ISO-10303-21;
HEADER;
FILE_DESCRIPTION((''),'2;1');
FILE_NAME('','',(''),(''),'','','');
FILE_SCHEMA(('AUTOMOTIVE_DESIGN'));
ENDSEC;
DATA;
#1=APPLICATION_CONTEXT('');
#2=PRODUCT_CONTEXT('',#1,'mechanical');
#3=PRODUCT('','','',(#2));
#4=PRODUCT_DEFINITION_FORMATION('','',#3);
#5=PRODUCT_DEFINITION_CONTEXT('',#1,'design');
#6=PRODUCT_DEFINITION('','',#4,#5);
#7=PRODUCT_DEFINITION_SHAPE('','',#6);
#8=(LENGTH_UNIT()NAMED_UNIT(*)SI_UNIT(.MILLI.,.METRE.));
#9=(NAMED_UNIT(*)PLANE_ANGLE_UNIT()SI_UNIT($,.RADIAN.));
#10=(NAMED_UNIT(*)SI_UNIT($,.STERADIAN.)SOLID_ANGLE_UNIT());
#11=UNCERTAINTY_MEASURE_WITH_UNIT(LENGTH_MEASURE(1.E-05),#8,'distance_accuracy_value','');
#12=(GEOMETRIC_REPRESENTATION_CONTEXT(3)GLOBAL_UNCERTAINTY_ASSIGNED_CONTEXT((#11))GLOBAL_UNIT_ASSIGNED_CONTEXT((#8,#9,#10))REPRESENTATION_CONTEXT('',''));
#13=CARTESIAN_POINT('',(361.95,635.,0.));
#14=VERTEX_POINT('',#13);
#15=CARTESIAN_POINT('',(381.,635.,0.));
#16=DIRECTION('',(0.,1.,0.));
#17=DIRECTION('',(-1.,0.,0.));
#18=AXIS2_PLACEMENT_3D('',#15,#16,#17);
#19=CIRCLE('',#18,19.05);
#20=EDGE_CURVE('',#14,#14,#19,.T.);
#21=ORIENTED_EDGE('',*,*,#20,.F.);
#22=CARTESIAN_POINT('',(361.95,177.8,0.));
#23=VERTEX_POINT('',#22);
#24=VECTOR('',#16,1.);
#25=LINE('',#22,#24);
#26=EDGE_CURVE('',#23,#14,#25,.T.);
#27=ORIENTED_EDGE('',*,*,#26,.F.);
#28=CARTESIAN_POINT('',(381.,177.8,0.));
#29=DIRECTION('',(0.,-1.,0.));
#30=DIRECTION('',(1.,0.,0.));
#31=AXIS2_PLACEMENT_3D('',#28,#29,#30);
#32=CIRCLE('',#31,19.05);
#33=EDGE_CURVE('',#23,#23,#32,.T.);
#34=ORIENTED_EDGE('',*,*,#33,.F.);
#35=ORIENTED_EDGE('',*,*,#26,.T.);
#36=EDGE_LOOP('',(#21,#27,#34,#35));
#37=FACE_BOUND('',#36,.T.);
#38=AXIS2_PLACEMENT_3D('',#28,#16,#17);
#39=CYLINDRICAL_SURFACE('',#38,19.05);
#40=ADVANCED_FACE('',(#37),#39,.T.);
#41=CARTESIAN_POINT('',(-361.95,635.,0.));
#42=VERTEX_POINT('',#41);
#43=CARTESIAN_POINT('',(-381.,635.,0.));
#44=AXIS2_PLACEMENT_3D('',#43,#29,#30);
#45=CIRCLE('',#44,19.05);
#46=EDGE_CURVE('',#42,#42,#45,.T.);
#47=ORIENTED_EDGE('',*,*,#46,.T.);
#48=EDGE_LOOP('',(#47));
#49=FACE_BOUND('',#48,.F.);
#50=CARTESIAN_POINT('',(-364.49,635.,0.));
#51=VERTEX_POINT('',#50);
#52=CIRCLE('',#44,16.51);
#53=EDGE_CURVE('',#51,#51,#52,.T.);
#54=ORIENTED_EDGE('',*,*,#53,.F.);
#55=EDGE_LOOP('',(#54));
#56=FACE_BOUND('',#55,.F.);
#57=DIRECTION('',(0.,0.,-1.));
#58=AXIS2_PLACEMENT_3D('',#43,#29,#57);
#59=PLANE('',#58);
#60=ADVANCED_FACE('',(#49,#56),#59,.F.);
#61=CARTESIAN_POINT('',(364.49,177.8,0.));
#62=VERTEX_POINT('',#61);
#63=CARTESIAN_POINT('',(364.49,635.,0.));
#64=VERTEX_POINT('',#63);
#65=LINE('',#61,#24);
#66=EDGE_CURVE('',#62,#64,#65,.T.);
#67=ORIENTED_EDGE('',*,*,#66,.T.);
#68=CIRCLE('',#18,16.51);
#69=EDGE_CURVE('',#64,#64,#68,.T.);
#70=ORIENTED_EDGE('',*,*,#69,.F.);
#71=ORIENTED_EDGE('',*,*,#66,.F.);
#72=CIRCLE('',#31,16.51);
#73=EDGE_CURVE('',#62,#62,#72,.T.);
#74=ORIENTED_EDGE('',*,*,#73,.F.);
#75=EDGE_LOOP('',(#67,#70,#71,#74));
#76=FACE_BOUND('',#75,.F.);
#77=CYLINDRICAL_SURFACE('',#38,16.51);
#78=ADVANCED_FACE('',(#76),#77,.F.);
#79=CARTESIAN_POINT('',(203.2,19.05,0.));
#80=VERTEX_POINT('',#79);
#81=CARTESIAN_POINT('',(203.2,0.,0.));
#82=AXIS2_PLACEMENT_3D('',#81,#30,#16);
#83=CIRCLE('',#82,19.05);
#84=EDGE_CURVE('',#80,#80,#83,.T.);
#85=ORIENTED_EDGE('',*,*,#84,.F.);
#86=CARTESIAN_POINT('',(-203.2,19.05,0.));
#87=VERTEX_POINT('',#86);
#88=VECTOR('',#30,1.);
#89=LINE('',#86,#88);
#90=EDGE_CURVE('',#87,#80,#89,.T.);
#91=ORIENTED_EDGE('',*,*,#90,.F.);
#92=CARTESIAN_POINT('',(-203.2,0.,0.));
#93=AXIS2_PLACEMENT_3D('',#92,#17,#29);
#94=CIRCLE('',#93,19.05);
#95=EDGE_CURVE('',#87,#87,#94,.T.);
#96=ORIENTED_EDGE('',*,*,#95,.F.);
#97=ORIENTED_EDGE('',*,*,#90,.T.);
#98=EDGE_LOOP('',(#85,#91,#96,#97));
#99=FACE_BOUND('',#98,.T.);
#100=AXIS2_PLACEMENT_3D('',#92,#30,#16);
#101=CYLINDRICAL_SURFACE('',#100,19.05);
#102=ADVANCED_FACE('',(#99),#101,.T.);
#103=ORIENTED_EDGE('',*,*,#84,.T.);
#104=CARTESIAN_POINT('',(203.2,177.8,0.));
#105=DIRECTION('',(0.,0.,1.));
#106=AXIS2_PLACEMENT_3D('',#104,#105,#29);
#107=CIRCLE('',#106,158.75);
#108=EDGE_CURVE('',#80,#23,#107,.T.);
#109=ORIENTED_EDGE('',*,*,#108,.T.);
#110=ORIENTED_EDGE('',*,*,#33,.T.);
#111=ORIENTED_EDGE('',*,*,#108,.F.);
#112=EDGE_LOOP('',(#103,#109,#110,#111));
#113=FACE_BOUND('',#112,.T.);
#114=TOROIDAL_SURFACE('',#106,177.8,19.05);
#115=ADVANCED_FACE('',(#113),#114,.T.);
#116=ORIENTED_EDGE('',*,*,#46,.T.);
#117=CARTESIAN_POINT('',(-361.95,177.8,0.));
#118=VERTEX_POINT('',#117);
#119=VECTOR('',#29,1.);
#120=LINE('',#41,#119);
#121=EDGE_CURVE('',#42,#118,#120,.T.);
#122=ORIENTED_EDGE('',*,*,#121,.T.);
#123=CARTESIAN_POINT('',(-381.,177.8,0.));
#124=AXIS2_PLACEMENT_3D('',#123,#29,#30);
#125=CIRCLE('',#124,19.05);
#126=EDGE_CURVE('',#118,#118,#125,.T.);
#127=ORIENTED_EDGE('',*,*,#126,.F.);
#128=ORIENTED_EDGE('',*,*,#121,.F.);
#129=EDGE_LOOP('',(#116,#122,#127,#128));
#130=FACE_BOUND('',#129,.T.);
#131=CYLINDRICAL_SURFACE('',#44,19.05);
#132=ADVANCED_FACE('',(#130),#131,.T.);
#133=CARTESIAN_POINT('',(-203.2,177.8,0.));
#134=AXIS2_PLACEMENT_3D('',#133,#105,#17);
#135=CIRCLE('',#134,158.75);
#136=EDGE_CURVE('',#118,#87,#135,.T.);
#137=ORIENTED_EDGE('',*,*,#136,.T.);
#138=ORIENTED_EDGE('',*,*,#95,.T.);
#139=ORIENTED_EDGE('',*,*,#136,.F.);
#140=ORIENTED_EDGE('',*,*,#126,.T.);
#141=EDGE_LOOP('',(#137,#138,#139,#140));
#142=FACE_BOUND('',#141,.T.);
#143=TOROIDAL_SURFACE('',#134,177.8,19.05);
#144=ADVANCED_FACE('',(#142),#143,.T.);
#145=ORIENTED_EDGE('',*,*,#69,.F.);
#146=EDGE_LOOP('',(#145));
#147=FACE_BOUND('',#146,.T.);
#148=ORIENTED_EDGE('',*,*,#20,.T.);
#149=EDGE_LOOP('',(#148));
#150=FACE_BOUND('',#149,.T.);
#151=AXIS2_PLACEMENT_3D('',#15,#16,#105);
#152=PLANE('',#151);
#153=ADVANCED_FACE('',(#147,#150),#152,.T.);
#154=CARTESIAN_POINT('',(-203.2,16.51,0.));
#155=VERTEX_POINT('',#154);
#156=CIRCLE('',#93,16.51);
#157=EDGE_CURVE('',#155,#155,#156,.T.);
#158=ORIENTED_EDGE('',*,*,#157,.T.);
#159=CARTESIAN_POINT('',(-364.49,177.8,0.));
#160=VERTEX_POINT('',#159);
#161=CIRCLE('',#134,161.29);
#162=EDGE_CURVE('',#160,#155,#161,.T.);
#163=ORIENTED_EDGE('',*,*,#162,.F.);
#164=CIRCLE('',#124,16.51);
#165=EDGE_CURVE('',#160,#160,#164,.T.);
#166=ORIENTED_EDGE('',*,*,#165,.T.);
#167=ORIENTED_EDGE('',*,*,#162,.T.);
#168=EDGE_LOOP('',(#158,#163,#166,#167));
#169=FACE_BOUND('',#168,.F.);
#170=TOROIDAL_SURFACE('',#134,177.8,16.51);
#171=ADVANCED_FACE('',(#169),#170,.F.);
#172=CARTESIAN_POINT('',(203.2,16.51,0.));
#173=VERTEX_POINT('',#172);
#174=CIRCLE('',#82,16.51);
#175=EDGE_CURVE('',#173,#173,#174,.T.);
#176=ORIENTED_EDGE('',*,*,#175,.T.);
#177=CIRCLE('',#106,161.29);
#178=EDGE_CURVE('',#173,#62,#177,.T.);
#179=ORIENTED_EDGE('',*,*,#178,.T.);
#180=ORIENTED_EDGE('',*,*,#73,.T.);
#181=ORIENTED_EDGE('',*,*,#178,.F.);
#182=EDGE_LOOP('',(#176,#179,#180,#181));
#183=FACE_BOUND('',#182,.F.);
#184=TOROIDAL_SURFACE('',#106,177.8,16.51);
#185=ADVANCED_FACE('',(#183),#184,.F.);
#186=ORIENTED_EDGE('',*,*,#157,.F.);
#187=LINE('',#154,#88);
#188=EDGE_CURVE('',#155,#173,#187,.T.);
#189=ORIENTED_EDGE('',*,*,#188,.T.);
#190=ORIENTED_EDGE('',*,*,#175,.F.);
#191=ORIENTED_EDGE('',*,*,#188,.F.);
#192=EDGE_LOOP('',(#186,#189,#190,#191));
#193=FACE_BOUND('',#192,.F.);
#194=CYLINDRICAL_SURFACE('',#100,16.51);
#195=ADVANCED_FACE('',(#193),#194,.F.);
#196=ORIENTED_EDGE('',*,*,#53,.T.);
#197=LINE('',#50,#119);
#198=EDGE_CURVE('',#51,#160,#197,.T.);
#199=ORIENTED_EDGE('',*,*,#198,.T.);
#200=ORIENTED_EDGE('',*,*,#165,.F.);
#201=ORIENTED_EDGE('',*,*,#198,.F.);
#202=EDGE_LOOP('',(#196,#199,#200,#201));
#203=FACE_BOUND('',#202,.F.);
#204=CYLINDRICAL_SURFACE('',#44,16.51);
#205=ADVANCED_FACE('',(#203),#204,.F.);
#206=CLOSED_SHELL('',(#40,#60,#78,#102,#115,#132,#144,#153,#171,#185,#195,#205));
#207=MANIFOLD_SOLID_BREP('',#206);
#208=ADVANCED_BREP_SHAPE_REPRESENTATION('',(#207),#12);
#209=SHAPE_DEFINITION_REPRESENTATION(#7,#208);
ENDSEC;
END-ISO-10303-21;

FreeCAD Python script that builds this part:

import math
import FreeCAD as App
import Part
import Sketcher
from FreeCAD import Vector
Q = App.Units.Quantity


def faces_at(feature, points):
    """Names of the faces that lie closest to the given points."""
    faces = feature.Shape.Faces
    near = lambda p: min(range(len(faces)), key=lambda i: faces[i].distToShape(Part.Vertex(*p))[0])
    return sorted({f"Face{near(p) + 1}" for p in points})

doc = App.newDocument("Part")
body = doc.addObject("PartDesign::Body", "Body")

sketch1 = body.newObject("Sketcher::SketchObject", "Sketch")
sketch1.AttachmentSupport = (doc.getObject("XZ_Plane"), [""])
sketch1.MapMode = "FlatFace"
sketch1.AttachmentOffset = App.Placement(Vector(0, 0, -25 * 25.4), App.Rotation())
sketch1.addGeometry(Part.Circle(Vector(-381, 0, 0), Vector(0, 0, 1), 19.05), False)
sketch1.addConstraint([
    Sketcher.Constraint("PointOnObject", 0, 3, -1),
    Sketcher.Constraint("Diameter", 0, Q("1.5 in")),
    Sketcher.Constraint("DistanceX", 0, 3, -1, 1, Q("15 in")),
])

sketch2 = body.newObject("Sketcher::SketchObject", "Sketch001")
sketch2.AttachmentSupport = (doc.getObject("XY_Plane"), [""])
sketch2.MapMode = "FlatFace"
sketch2.addGeometry([
    Part.LineSegment(Vector(-381, 635, 0), Vector(-381, 177.8, 0)),
    Part.ArcOfCircle(Part.Circle(Vector(-203.2, 177.8, 0), Vector(0, 0, 1), 177.8), math.radians(180), math.radians(270)),
    Part.LineSegment(Vector(-203.2, 0, 0), Vector(203.2, 0, 0)),
    Part.ArcOfCircle(Part.Circle(Vector(203.2, 177.8, 0), Vector(0, 0, 1), 177.8), math.radians(-90), math.radians(0)),
    Part.LineSegment(Vector(381, 177.8, 0), Vector(381, 635, 0)),
], False)
sketch2.addConstraint([
    Sketcher.Constraint("Tangent", 0, 2, 1, 1),
    Sketcher.Constraint("Tangent", 1, 2, 2, 1),
    Sketcher.Constraint("Tangent", 2, 2, 3, 1),
    Sketcher.Constraint("Tangent", 3, 2, 4, 1),
    Sketcher.Constraint("Vertical", 0),
    Sketcher.Constraint("Horizontal", 2),
    Sketcher.Constraint("Vertical", 4),
    Sketcher.Constraint("Equal", 1, 3),
    Sketcher.Constraint("Symmetric", 1, 2, 2, 2, -1, 1),
    Sketcher.Constraint("Horizontal", 0, 1, 4, 2),
    Sketcher.Constraint("Radius", 1, Q("7 in")),
    Sketcher.Constraint("DistanceX", 2, 1, 2, 2, Q("16 in")),
    Sketcher.Constraint("DistanceY", 0, 2, 0, 1, Q("18 in")),
])
doc.recompute()

additivepipe = body.newObject("PartDesign::AdditivePipe", "AdditivePipe")
additivepipe.Profile = sketch1
additivepipe.Spine = (sketch2, ["Edge1", "Edge2", "Edge3", "Edge4", "Edge5"])
doc.recompute()

thickness = body.newObject("PartDesign::Thickness", "Thickness")
thickness.Base = (additivepipe, faces_at(additivepipe, [(381, 635, 0), (-381, 635, 0)]))
thickness.Value = Q("0.1 in")
thickness.Reversed = True
thickness.Join = "Arc"

doc.recompute()
